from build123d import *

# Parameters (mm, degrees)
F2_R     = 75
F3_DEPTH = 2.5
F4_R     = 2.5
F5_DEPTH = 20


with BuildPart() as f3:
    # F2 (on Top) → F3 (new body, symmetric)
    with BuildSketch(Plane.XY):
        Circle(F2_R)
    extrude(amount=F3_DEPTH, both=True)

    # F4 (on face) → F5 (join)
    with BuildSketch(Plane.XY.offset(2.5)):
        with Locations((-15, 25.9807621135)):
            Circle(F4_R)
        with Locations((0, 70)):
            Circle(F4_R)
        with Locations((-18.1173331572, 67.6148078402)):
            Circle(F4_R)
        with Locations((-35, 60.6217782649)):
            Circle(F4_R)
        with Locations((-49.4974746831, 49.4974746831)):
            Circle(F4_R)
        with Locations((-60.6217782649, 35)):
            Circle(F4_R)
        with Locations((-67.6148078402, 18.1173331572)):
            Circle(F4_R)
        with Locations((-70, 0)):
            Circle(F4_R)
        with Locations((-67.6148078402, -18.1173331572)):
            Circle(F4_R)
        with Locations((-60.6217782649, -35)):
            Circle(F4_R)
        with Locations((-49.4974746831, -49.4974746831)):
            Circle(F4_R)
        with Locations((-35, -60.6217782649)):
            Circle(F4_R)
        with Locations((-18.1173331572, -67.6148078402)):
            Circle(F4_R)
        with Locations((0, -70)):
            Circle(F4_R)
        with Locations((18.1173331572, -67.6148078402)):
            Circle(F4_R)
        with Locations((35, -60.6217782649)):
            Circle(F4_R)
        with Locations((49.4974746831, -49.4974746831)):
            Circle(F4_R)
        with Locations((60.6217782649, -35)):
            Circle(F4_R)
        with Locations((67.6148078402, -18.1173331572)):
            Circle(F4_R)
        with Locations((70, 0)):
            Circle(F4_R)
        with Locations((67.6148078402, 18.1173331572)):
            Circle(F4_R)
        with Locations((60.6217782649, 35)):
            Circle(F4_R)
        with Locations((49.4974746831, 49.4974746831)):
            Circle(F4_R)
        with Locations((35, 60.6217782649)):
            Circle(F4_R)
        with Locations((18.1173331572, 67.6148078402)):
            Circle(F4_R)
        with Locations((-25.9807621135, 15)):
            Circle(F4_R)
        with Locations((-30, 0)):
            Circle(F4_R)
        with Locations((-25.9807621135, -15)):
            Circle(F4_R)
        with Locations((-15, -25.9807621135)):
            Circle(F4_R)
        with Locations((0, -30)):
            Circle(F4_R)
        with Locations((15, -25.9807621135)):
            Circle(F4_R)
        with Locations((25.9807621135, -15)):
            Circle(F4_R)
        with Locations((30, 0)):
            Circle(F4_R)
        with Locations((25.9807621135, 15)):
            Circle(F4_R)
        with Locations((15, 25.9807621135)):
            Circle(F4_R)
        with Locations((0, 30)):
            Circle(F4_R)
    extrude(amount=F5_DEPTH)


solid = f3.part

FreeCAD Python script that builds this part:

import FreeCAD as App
import Part
import Sketcher
from FreeCAD import Vector

doc = App.newDocument("Part")
body = doc.addObject("PartDesign::Body", "Body")

sketch1 = doc.addObject("Sketcher::SketchObject", "Sketch")
body.addObject(sketch1)
sketch1.AttachmentSupport = (doc.XY_Plane, [""])
sketch1.MapMode = "FlatFace"
sketch1.addGeometry(Part.Circle(Vector(0, 0, 0), Vector(0, 0, 1), 75), False)
sketch1.addConstraint(Sketcher.Constraint("Coincident", 0, 3, -1, 1))
sketch1.addConstraint(Sketcher.Constraint("Diameter", 0, 150.0))
pad1 = doc.addObject("PartDesign::Pad", "Pad")
body.addObject(pad1)
pad1.Profile = sketch1
pad1.Length = 5
pad1.Midplane = True

sketch2 = doc.addObject("Sketcher::SketchObject", "Sketch001")
body.addObject(sketch2)
sketch2.AttachmentSupport = (doc.XY_Plane, [""])
sketch2.MapMode = "FlatFace"
sketch2.AttachmentOffset = App.Placement(Vector(0, 0, 2.5), App.Rotation())
sketch2.addGeometry(Part.Circle(Vector(-15, 25.980762, 0), Vector(0, 0, 1), 2.5), False)
sketch2.addGeometry(Part.Circle(Vector(0, 70, 0), Vector(0, 0, 1), 2.5), False)
sketch2.addGeometry(Part.Circle(Vector(-18.117333, 67.614808, 0), Vector(0, 0, 1), 2.5), False)
sketch2.addGeometry(Part.Circle(Vector(-35, 60.621778, 0), Vector(0, 0, 1), 2.5), False)
sketch2.addGeometry(Part.Circle(Vector(-49.497475, 49.497475, 0), Vector(0, 0, 1), 2.5), False)
sketch2.addGeometry(Part.Circle(Vector(-60.621778, 35, 0), Vector(0, 0, 1), 2.5), False)
sketch2.addGeometry(Part.Circle(Vector(-67.614808, 18.117333, 0), Vector(0, 0, 1), 2.5), False)
sketch2.addGeometry(Part.Circle(Vector(-70, 0, 0), Vector(0, 0, 1), 2.5), False)
sketch2.addGeometry(Part.Circle(Vector(-67.614808, -18.117333, 0), Vector(0, 0, 1), 2.5), False)
sketch2.addGeometry(Part.Circle(Vector(-60.621778, -35, 0), Vector(0, 0, 1), 2.5), False)
sketch2.addGeometry(Part.Circle(Vector(-49.497475, -49.497475, 0), Vector(0, 0, 1), 2.5), False)
sketch2.addGeometry(Part.Circle(Vector(-35, -60.621778, 0), Vector(0, 0, 1), 2.5), False)
sketch2.addGeometry(Part.Circle(Vector(-18.117333, -67.614808, 0), Vector(0, 0, 1), 2.5), False)
sketch2.addGeometry(Part.Circle(Vector(0, -70, 0), Vector(0, 0, 1), 2.5), False)
sketch2.addGeometry(Part.Circle(Vector(18.117333, -67.614808, 0), Vector(0, 0, 1), 2.5), False)
sketch2.addGeometry(Part.Circle(Vector(35, -60.621778, 0), Vector(0, 0, 1), 2.5), False)
sketch2.addGeometry(Part.Circle(Vector(49.497475, -49.497475, 0), Vector(0, 0, 1), 2.5), False)
sketch2.addGeometry(Part.Circle(Vector(60.621778, -35, 0), Vector(0, 0, 1), 2.5), False)
sketch2.addGeometry(Part.Circle(Vector(67.614808, -18.117333, 0), Vector(0, 0, 1), 2.5), False)
sketch2.addGeometry(Part.Circle(Vector(70, 0, 0), Vector(0, 0, 1), 2.5), False)
sketch2.addGeometry(Part.Circle(Vector(67.614808, 18.117333, 0), Vector(0, 0, 1), 2.5), False)
sketch2.addGeometry(Part.Circle(Vector(60.621778, 35, 0), Vector(0, 0, 1), 2.5), False)
sketch2.addGeometry(Part.Circle(Vector(49.497475, 49.497475, 0), Vector(0, 0, 1), 2.5), False)
sketch2.addGeometry(Part.Circle(Vector(35, 60.621778, 0), Vector(0, 0, 1), 2.5), False)
sketch2.addGeometry(Part.Circle(Vector(18.117333, 67.614808, 0), Vector(0, 0, 1), 2.5), False)
sketch2.addGeometry(Part.Circle(Vector(-25.980762, 15, 0), Vector(0, 0, 1), 2.5), False)
sketch2.addGeometry(Part.Circle(Vector(-30, 0, 0), Vector(0, 0, 1), 2.5), False)
sketch2.addGeometry(Part.Circle(Vector(-25.980762, -15, 0), Vector(0, 0, 1), 2.5), False)
sketch2.addGeometry(Part.Circle(Vector(-15, -25.980762, 0), Vector(0, 0, 1), 2.5), False)
sketch2.addGeometry(Part.Circle(Vector(0, -30, 0), Vector(0, 0, 1), 2.5), False)
sketch2.addGeometry(Part.Circle(Vector(15, -25.980762, 0), Vector(0, 0, 1), 2.5), False)
sketch2.addGeometry(Part.Circle(Vector(25.980762, -15, 0), Vector(0, 0, 1), 2.5), False)
sketch2.addGeometry(Part.Circle(Vector(30, 0, 0), Vector(0, 0, 1), 2.5), False)
sketch2.addGeometry(Part.Circle(Vector(25.980762, 15, 0), Vector(0, 0, 1), 2.5), False)
sketch2.addGeometry(Part.Circle(Vector(15, 25.980762, 0), Vector(0, 0, 1), 2.5), False)
sketch2.addGeometry(Part.Circle(Vector(0, 30, 0), Vector(0, 0, 1), 2.5), False)
sketch2.addConstraint(Sketcher.Constraint("Equal", 0, 1))
sketch2.addConstraint(Sketcher.Constraint("Equal", 1, 2))
sketch2.addConstraint(Sketcher.Constraint("Equal", 2, 3))
sketch2.addConstraint(Sketcher.Constraint("Equal", 3, 4))
sketch2.addConstraint(Sketcher.Constraint("Equal", 4, 5))
sketch2.addConstraint(Sketcher.Constraint("Equal", 5, 6))
sketch2.addConstraint(Sketcher.Constraint("Equal", 6, 7))
sketch2.addConstraint(Sketcher.Constraint("Equal", 7, 8))
sketch2.addConstraint(Sketcher.Constraint("Equal", 8, 9))
sketch2.addConstraint(Sketcher.Constraint("Equal", 9, 10))
sketch2.addConstraint(Sketcher.Constraint("Equal", 10, 11))
sketch2.addConstraint(Sketcher.Constraint("Equal", 11, 12))
sketch2.addConstraint(Sketcher.Constraint("Equal", 12, 13))
sketch2.addConstraint(Sketcher.Constraint("Equal", 13, 14))
sketch2.addConstraint(Sketcher.Constraint("Equal", 14, 15))
sketch2.addConstraint(Sketcher.Constraint("Equal", 15, 16))
sketch2.addConstraint(Sketcher.Constraint("Equal", 16, 17))
sketch2.addConstraint(Sketcher.Constraint("Equal", 17, 18))
sketch2.addConstraint(Sketcher.Constraint("Equal", 18, 19))
sketch2.addConstraint(Sketcher.Constraint("Equal", 19, 20))
sketch2.addConstraint(Sketcher.Constraint("Equal", 20, 21))
sketch2.addConstraint(Sketcher.Constraint("Equal", 21, 22))
sketch2.addConstraint(Sketcher.Constraint("Equal", 22, 23))
sketch2.addConstraint(Sketcher.Constraint("Equal", 23, 24))
sketch2.addConstraint(Sketcher.Constraint("Equal", 24, 25))
sketch2.addConstraint(Sketcher.Constraint("Equal", 25, 26))
sketch2.addConstraint(Sketcher.Constraint("Equal", 26, 27))
sketch2.addConstraint(Sketcher.Constraint("Equal", 27, 28))
sketch2.addConstraint(Sketcher.Constraint("Equal", 28, 29))
sketch2.addConstraint(Sketcher.Constraint("Equal", 29, 30))
sketch2.addConstraint(Sketcher.Constraint("Equal", 30, 31))
sketch2.addConstraint(Sketcher.Constraint("Equal", 31, 32))
sketch2.addConstraint(Sketcher.Constraint("Equal", 32, 33))
sketch2.addConstraint(Sketcher.Constraint("Equal", 33, 34))
sketch2.addConstraint(Sketcher.Constraint("Equal", 34, 35))
sketch2.addConstraint(Sketcher.Constraint("Symmetric", 1, 3, 13, 3, -1, 1))
sketch2.addConstraint(Sketcher.Constraint("Symmetric", 2, 3, 14, 3, -1, 1))
sketch2.addConstraint(Sketcher.Constraint("Symmetric", 3, 3, 15, 3, -1, 1))
sketch2.addConstraint(Sketcher.Constraint("Symmetric", 4, 3, 16, 3, -1, 1))
sketch2.addConstraint(Sketcher.Constraint("Symmetric", 5, 3, 17, 3, -1, 1))
sketch2.addConstraint(Sketcher.Constraint("Symmetric", 6, 3, 18, 3, -1, 1))
sketch2.addConstraint(Sketcher.Constraint("Symmetric", 7, 3, 19, 3, -1, 1))
sketch2.addConstraint(Sketcher.Constraint("Symmetric", 8, 3, 20, 3, -1, 1))
sketch2.addConstraint(Sketcher.Constraint("Symmetric", 9, 3, 21, 3, -1, 1))
sketch2.addConstraint(Sketcher.Constraint("Symmetric", 10, 3, 22, 3, -1, 1))
sketch2.addConstraint(Sketcher.Constraint("Symmetric", 11, 3, 23, 3, -1, 1))
sketch2.addConstraint(Sketcher.Constraint("Symmetric", 12, 3, 24, 3, -1, 1))
sketch2.addConstraint(Sketcher.Constraint("Symmetric", 0, 3, 30, 3, -1, 1))
sketch2.addConstraint(Sketcher.Constraint("Symmetric", 25, 3, 31, 3, -1, 1))
sketch2.addConstraint(Sketcher.Constraint("Symmetric", 26, 3, 32, 3, -1, 1))
sketch2.addConstraint(Sketcher.Constraint("Symmetric", 27, 3, 33, 3, -1, 1))
sketch2.addConstraint(Sketcher.Constraint("Symmetric", 28, 3, 34, 3, -1, 1))
sketch2.addConstraint(Sketcher.Constraint("Symmetric", 29, 3, 35, 3, -1, 1))
sketch2.addConstraint(Sketcher.Constraint("Symmetric", 12, 3, 14, 3, -2))
sketch2.addConstraint(Sketcher.Constraint("Symmetric", 11, 3, 15, 3, -2))
sketch2.addConstraint(Sketcher.Constraint("Symmetric", 10, 3, 16, 3, -2))
sketch2.addConstraint(Sketcher.Constraint("Symmetric", 9, 3, 17, 3, -2))
sketch2.addConstraint(Sketcher.Constraint("Symmetric", 8, 3, 18, 3, -2))
sketch2.addConstraint(Sketcher.Constraint("Symmetric", 28, 3, 30, 3, -2))
sketch2.addConstraint(Sketcher.Constraint("Symmetric", 27, 3, 31, 3, -2))
sketch2.addConstraint(Sketcher.Constraint("PointOnObject", 1, 3, -2))
sketch2.addConstraint(Sketcher.Constraint("PointOnObject", 7, 3, -1))
sketch2.addConstraint(Sketcher.Constraint("PointOnObject", 26, 3, -1))
sketch2.addConstraint(Sketcher.Constraint("PointOnObject", 29, 3, -2))
sketch2.addConstraint(Sketcher.Constraint("Diameter", 0, 5.0))
sketch2.addConstraint(Sketcher.Constraint("DistanceX", 0, 3, -1, 1, 15.0))
sketch2.addConstraint(Sketcher.Constraint("DistanceY", -1, 1, 1, 3, 70.0))
sketch2.addConstraint(Sketcher.Constraint("DistanceX", 3, 3, -1, 1, 35.0))
sketch2.addConstraint(Sketcher.Constraint("DistanceY", -1, 1, 5, 3, 35.0))
sketch2.addConstraint(Sketcher.Constraint("DistanceX", 7, 3, -1, 1, 70.0))
sketch2.addConstraint(Sketcher.Constraint("DistanceY", -1, 1, 25, 3, 15.0))
sketch2.addConstraint(Sketcher.Constraint("DistanceX", 26, 3, -1, 1, 30.0))
sketch2.addConstraint(Sketcher.Constraint("DistanceY", 29, 3, -1, 1, 30.0))
sketch2.addConstraint(Sketcher.Constraint("DistanceY", -1, 1, 3, 3, 60.621778))
sketch2.addConstraint(Sketcher.Constraint("DistanceX", 5, 3, -1, 1, 60.621778))
sketch2.addConstraint(Sketcher.Constraint("DistanceY", 3, 3, 2, 3, 6.99303))
sketch2.addConstraint(Sketcher.Constraint("DistanceX", 4, 3, 2, 3, 31.380142))
sketch2.addConstraint(Sketcher.Constraint("DistanceX", 6, 3, 5, 3, 6.99303))
sketch2.addConstraint(Sketcher.Constraint("DistanceY", 6, 3, 4, 3, 31.380142))
sketch2.addConstraint(Sketcher.Constraint("DistanceY", 6, 3, 0, 3, 7.863429))
sketch2.addConstraint(Sketcher.Constraint("DistanceY", 11, 3, 6, 3, 78.739111))
sketch2.addConstraint(Sketcher.Constraint("DistanceX", 9, 3, 14, 3, 78.739111))
sketch2.addConstraint(Sketcher.Constraint("DistanceX", 25, 3, -1, 1, 25.980762))
pad2 = doc.addObject("PartDesign::Pad", "Pad001")
body.addObject(pad2)
pad2.Profile = sketch2
pad2.Length = 20

doc.recompute()
